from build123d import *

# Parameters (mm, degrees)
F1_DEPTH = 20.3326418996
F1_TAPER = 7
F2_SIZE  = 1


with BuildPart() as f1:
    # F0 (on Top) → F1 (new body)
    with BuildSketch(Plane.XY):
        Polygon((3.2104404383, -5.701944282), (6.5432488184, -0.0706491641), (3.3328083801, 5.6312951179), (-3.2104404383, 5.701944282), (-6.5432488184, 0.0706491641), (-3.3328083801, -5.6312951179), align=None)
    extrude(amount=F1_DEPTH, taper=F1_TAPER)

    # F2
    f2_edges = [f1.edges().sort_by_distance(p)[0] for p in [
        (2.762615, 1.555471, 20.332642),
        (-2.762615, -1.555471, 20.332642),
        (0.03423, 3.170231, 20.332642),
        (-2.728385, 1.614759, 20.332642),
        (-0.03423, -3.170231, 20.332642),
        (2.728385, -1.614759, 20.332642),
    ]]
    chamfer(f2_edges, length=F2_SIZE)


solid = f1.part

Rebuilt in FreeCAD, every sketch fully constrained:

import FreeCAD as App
import Part
import Sketcher
from FreeCAD import Vector
Q = App.Units.Quantity


def edges_at(feature, points):
    """Names of the edges that pass closest to the given points."""
    edges = feature.Shape.Edges
    near = lambda p: min(range(len(edges)), key=lambda i: edges[i].distToShape(Part.Vertex(*p))[0])
    return sorted({f"Edge{near(p) + 1}" for p in points})

doc = App.newDocument("Part")
body = doc.addObject("PartDesign::Body", "Body")

sketch1 = body.newObject("Sketcher::SketchObject", "Sketch")
sketch1.AttachmentSupport = (doc.getObject("XY_Plane"), [""])
sketch1.MapMode = "FlatFace"
sketch1.addGeometry(Part.LineSegment(Vector(3, -6, 0), Vector(7, 0, 0)), False)
sketch1.addGeometry(Part.LineSegment(Vector(7, 0, 0), Vector(3, 6, 0)), False)
sketch1.addGeometry(Part.LineSegment(Vector(3, 6, 0), Vector(-3, 6, 0)), False)
sketch1.addGeometry(Part.LineSegment(Vector(-3, 6, 0), Vector(-7, 0, 0)), False)
sketch1.addGeometry(Part.LineSegment(Vector(-7, 0, 0), Vector(-3, -6, 0)), False)
sketch1.addGeometry(Part.LineSegment(Vector(-3, -6, 0), Vector(3, -6, 0)), False)
sketch1.addConstraint(Sketcher.Constraint("Coincident", 0, 2, 1, 1))
sketch1.addConstraint(Sketcher.Constraint("Coincident", 1, 2, 2, 1))
sketch1.addConstraint(Sketcher.Constraint("Coincident", 2, 2, 3, 1))
sketch1.addConstraint(Sketcher.Constraint("Coincident", 3, 2, 4, 1))
sketch1.addConstraint(Sketcher.Constraint("Coincident", 4, 2, 5, 1))
sketch1.addConstraint(Sketcher.Constraint("Coincident", 5, 2, 0, 1))
sketch1.addConstraint(Sketcher.Constraint("Symmetric", 0, 2, 3, 2, -1, 1))
sketch1.addConstraint(Sketcher.Constraint("Symmetric", 1, 2, 4, 2, -1, 1))
sketch1.addConstraint(Sketcher.Constraint("Symmetric", 2, 2, 5, 2, -1, 1))
sketch1.addConstraint(Sketcher.Constraint("Equal", 0, 1))
sketch1.addConstraint(Sketcher.Constraint("Equal", 1, 2))
sketch1.addConstraint(Sketcher.Constraint("DistanceY", 0, 2, 3, 2, Q("0.141298 mm")))
sketch1.addConstraint(Sketcher.Constraint("Distance", 0, Q("6.54363 mm")))
sketch1.addConstraint(Sketcher.Constraint("DistanceX", -1, 1, 0, 2, Q("6.543249 mm")))
sketch1.addConstraint(Sketcher.Constraint("DistanceX", -1, 1, 1, 2, Q("3.332808 mm")))
pad1 = body.newObject("PartDesign::Pad", "Pad")
pad1.Profile = sketch1
pad1.Length = 20.332642
pad1.TaperAngle = -7
doc.recompute()

chamfer = body.newObject("PartDesign::Chamfer", "Chamfer")
chamfer.Base = (pad1, edges_at(pad1, [
    (2.763, 1.555, 20.333),
    (-2.763, -1.555, 20.333),
    (0.034, 3.17, 20.333),
    (-2.728, 1.615, 20.333),
    (-0.034, -3.17, 20.333),
    (2.728, -1.615, 20.333),
]))
chamfer.Size = 1

doc.recompute()
